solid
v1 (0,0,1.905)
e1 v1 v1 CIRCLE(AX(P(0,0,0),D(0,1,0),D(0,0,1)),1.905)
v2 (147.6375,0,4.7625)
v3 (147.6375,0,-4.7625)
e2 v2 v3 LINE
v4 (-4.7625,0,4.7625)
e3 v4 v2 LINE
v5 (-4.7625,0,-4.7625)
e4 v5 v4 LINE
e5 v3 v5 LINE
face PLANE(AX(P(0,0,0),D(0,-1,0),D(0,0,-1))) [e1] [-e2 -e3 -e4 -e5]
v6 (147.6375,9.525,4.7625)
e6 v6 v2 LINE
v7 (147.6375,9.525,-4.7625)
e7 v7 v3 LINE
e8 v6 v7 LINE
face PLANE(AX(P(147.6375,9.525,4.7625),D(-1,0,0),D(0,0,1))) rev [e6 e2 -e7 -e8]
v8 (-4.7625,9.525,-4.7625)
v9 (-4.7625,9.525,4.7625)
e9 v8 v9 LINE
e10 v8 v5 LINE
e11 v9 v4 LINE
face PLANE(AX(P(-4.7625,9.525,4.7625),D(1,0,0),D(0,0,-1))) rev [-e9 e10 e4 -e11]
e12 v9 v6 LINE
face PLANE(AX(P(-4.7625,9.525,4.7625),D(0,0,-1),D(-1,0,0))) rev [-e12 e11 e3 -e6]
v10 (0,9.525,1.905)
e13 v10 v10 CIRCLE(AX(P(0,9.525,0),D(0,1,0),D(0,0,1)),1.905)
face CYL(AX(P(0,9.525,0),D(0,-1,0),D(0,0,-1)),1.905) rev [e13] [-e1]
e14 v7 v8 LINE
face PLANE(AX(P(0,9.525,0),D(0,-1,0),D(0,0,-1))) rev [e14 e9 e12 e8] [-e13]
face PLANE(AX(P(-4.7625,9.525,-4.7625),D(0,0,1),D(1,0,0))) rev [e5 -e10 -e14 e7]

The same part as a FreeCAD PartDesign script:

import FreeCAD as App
import Part
import Sketcher

V = App.Vector
Q = App.Units.Quantity

doc = App.newDocument("Part")
body = doc.addObject("PartDesign::Body", "Body")

# Sketch on XZ plane
sketch1 = body.newObject("Sketcher::SketchObject", "Sketch")
sketch1.AttachmentSupport = (doc.getObject("XZ_Plane"), [""])
sketch1.MapMode = "FlatFace"
sketch1.addGeometry([
    Part.LineSegment(V(-4.8, -4.8, 0), V(-4.8, 4.8, 0)),  # 0
    Part.LineSegment(V(-4.8, 4.8, 0), V(147.6, 4.8, 0)),  # 1
    Part.LineSegment(V(147.6, 4.8, 0), V(147.6, -4.8, 0)),  # 2
    Part.LineSegment(V(147.6, -4.8, 0), V(-4.8, -4.8, 0)),  # 3
    Part.Circle(V(0, 0, 0), V(0, 0, 1), 1.9),  # 4
], False)
sketch1.addConstraint([
    Sketcher.Constraint("Coincident", 0, 2, 1, 1),
    Sketcher.Constraint("Coincident", 1, 2, 2, 1),
    Sketcher.Constraint("Coincident", 2, 2, 3, 1),
    Sketcher.Constraint("Coincident", 3, 2, 0, 1),
    Sketcher.Constraint("Vertical", 0),
    Sketcher.Constraint("Horizontal", 1),
    Sketcher.Constraint("Vertical", 2),
    Sketcher.Constraint("Horizontal", 3),
    Sketcher.Constraint("Coincident", 4, 3, -1, 1),
    Sketcher.Constraint("Diameter", 4, Q("0.15 in")),
    Sketcher.Constraint("DistanceX", 1, 1, 1, 2, Q("6 in")),
    Sketcher.Constraint("DistanceY", 0, 1, 0, 2, Q("0.375 in")),
    Sketcher.Constraint("DistanceX", 0, 2, -1, 1, Q("0.1875 in")),
    Sketcher.Constraint("DistanceY", -1, 1, 0, 2, Q("0.1875 in")),
])
pad1 = body.newObject("PartDesign::Pad", "Pad")
pad1.Profile = sketch1
pad1.Length = Q("0.375 in")
pad1.Reversed = True

doc.recompute()
